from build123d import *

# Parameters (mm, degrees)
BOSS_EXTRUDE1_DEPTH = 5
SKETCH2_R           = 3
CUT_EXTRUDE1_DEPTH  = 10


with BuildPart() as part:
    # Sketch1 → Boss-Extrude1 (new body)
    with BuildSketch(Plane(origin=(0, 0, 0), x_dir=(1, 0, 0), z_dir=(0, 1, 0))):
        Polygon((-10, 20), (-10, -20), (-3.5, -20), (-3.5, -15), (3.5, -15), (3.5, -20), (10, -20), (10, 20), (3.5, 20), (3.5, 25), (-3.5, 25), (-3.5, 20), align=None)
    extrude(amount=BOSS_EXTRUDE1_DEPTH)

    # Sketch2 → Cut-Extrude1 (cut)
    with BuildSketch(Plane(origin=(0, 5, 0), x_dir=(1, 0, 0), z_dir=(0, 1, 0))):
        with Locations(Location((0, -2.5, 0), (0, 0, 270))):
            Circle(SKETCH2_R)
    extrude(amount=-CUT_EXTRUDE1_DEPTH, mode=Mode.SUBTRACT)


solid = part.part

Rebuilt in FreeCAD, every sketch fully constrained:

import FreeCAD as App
import Part
import Sketcher

V = App.Vector
Q = App.Units.Quantity

doc = App.newDocument("Part")
params = doc.addObject("Spreadsheet::Sheet", "Params")
for row, (alias, value) in enumerate([
    ("sketch1_width", "7 mm"),
    ("sketch1_height", "40 mm"),
    ("sketch1_height2", "5 mm"),
    ("sketch1_width2", "6.5 mm"),
    ("pad1_length", "5 mm"),
    ("sketch2_diameter", "6 mm"),
    ("pocket1_length", "10 mm"),
], start=1):
    params.set(f"A{row}", alias)
    params.set(f"B{row}", "=" + value)
    params.setAlias(f"B{row}", alias)

body = doc.addObject("PartDesign::Body", "Body")

# Sketch on XZ plane
sketch1 = body.newObject("Sketcher::SketchObject", "Sketch")
sketch1.AttachmentSupport = (doc.getObject("XZ_Plane"), [""])
sketch1.MapMode = "FlatFace"
sketch1.addGeometry(Part.LineSegment(V(-10, -20, 0), V(-10, 20, 0)), False)
sketch1.addGeometry(Part.LineSegment(V(-10, 20, 0), V(-4, 20, 0)), False)
sketch1.addGeometry(Part.LineSegment(V(-4, 20, 0), V(-4, 15, 0)), False)
sketch1.addGeometry(Part.LineSegment(V(-4, 15, 0), V(4, 15, 0)), False)
sketch1.addGeometry(Part.LineSegment(V(4, 15, 0), V(4, 20, 0)), False)
sketch1.addGeometry(Part.LineSegment(V(4, 20, 0), V(10, 20, 0)), False)
sketch1.addGeometry(Part.LineSegment(V(10, 20, 0), V(10, -20, 0)), False)
sketch1.addGeometry(Part.LineSegment(V(10, -20, 0), V(4, -20, 0)), False)
sketch1.addGeometry(Part.LineSegment(V(4, -20, 0), V(4, -25, 0)), False)
sketch1.addGeometry(Part.LineSegment(V(4, -25, 0), V(-4, -25, 0)), False)
sketch1.addGeometry(Part.LineSegment(V(-4, -25, 0), V(-4, -20, 0)), False)
sketch1.addGeometry(Part.LineSegment(V(-4, -20, 0), V(-10, -20, 0)), False)
sketch1.addConstraint(Sketcher.Constraint("Coincident", 0, 2, 1, 1))
sketch1.addConstraint(Sketcher.Constraint("Coincident", 1, 2, 2, 1))
sketch1.addConstraint(Sketcher.Constraint("Coincident", 2, 2, 3, 1))
sketch1.addConstraint(Sketcher.Constraint("Coincident", 3, 2, 4, 1))
sketch1.addConstraint(Sketcher.Constraint("Coincident", 4, 2, 5, 1))
sketch1.addConstraint(Sketcher.Constraint("Coincident", 5, 2, 6, 1))
sketch1.addConstraint(Sketcher.Constraint("Coincident", 6, 2, 7, 1))
sketch1.addConstraint(Sketcher.Constraint("Coincident", 7, 2, 8, 1))
sketch1.addConstraint(Sketcher.Constraint("Coincident", 8, 2, 9, 1))
sketch1.addConstraint(Sketcher.Constraint("Coincident", 9, 2, 10, 1))
sketch1.addConstraint(Sketcher.Constraint("Coincident", 10, 2, 11, 1))
sketch1.addConstraint(Sketcher.Constraint("Coincident", 11, 2, 0, 1))
sketch1.addConstraint(Sketcher.Constraint("Vertical", 0))
sketch1.addConstraint(Sketcher.Constraint("Horizontal", 1))
sketch1.addConstraint(Sketcher.Constraint("Vertical", 2))
sketch1.addConstraint(Sketcher.Constraint("Horizontal", 3))
sketch1.addConstraint(Sketcher.Constraint("Vertical", 4))
sketch1.addConstraint(Sketcher.Constraint("Horizontal", 5))
sketch1.addConstraint(Sketcher.Constraint("Vertical", 6))
sketch1.addConstraint(Sketcher.Constraint("Horizontal", 7))
sketch1.addConstraint(Sketcher.Constraint("Vertical", 8))
sketch1.addConstraint(Sketcher.Constraint("Horizontal", 9))
sketch1.addConstraint(Sketcher.Constraint("Vertical", 10))
sketch1.addConstraint(Sketcher.Constraint("Horizontal", 11))
sketch1.addConstraint(Sketcher.Constraint("Symmetric", 0, 2, 6, 2, -1, 1))
sketch1.addConstraint(Sketcher.Constraint("Symmetric", 4, 2, 10, 2, -1, 1))
sketch1.addConstraint(Sketcher.Constraint("Symmetric", 1, 2, 4, 2, -2))
sketch1.addConstraint(Sketcher.Constraint("Vertical", 4, 2, 7, 2))
sketch1.addConstraint(Sketcher.Constraint("Equal", 4, 8))
sketch1.addConstraint(Sketcher.Constraint("DistanceX", 3, 1, 3, 2, Q("7 mm")))
sketch1.addConstraint(Sketcher.Constraint("DistanceY", 0, 1, 0, 2, Q("40 mm")))
sketch1.addConstraint(Sketcher.Constraint("DistanceY", 2, 2, 2, 1, Q("5 mm")))
sketch1.addConstraint(Sketcher.Constraint("DistanceX", 1, 1, 1, 2, Q("6.5 mm")))
sketch1.setExpression("Constraints[29]", "Params.sketch1_width")
sketch1.setExpression("Constraints[30]", "Params.sketch1_height")
sketch1.setExpression("Constraints[31]", "Params.sketch1_height2")
sketch1.setExpression("Constraints[32]", "Params.sketch1_width2")
pad1 = body.newObject("PartDesign::Pad", "Pad")
pad1.Profile = sketch1
pad1.setExpression("Length", "Params.pad1_length")
pad1.Reversed = True

# Sketch on XZ plane
sketch2 = body.newObject("Sketcher::SketchObject", "Sketch001")
sketch2.AttachmentSupport = (doc.getObject("XZ_Plane"), [""])
sketch2.MapMode = "FlatFace"
sketch2.AttachmentOffset = App.Placement(V(0, 0, -5), App.Rotation())
sketch2.addGeometry(Part.Circle(V(0, 2.5, 0), V(0, 0, 1), 3), False)
sketch2.addConstraint(Sketcher.Constraint("PointOnObject", 0, 3, -2))
sketch2.addConstraint(Sketcher.Constraint("Diameter", 0, Q("6 mm")))
sketch2.addConstraint(Sketcher.Constraint("DistanceY", -1, 1, 0, 3, Q("2.5 mm")))
sketch2.setExpression("Constraints[1]", "Params.sketch2_diameter")
pocket1 = body.newObject("PartDesign::Pocket", "Pocket")
pocket1.Profile = sketch2
pocket1.setExpression("Length", "Params.pocket1_length")
pocket1.Reversed = True

doc.recompute()
